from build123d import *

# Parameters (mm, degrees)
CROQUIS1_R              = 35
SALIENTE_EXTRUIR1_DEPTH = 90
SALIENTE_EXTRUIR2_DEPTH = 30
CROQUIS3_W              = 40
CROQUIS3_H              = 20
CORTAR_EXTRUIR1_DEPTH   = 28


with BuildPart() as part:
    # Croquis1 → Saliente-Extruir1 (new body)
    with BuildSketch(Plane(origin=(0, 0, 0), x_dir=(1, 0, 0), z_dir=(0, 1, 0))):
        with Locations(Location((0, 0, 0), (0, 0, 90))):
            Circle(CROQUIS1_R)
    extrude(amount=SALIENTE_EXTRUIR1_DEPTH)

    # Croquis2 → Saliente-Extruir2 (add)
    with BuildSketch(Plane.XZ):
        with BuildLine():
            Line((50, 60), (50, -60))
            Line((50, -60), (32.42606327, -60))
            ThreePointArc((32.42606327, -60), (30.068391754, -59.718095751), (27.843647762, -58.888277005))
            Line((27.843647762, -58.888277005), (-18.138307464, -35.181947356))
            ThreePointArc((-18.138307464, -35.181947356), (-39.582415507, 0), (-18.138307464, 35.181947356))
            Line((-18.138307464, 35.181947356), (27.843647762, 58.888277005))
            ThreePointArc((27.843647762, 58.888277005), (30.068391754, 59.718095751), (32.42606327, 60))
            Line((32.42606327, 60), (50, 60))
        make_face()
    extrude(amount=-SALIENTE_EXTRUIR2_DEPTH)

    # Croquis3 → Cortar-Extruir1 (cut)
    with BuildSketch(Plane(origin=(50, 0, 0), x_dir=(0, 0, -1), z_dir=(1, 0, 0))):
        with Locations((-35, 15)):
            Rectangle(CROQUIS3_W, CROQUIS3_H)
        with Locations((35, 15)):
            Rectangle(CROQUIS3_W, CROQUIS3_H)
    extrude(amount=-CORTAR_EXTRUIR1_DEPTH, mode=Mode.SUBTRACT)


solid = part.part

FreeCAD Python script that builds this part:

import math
import FreeCAD as App
import Part
import Sketcher
from FreeCAD import Vector

doc = App.newDocument("Part")
body = doc.addObject("PartDesign::Body", "Body")

# Sketch on XZ plane
sketch1 = body.newObject("Sketcher::SketchObject", "Sketch")
sketch1.AttachmentSupport = (doc.getObject("XZ_Plane"), [""])
sketch1.MapMode = "FlatFace"
sketch1.addGeometry(Part.Circle(Vector(0, 0, 0), Vector(0, 0, 1), 35), False)
sketch1.addConstraint([
    Sketcher.Constraint("Coincident", 0, 3, -1, 1),
    Sketcher.Constraint("Diameter", 0, 70.0),
])
pad1 = body.newObject("PartDesign::Pad", "Pad")
pad1.Profile = sketch1
pad1.Length = 90
pad1.Reversed = True

# Sketch on XZ plane
sketch2 = body.newObject("Sketcher::SketchObject", "Sketch001")
sketch2.AttachmentSupport = (doc.getObject("XZ_Plane"), [""])
sketch2.MapMode = "FlatFace"
sketch2.addGeometry([
    Part.LineSegment(Vector(50, -60, 0), Vector(50, 60, 0)),  # 0
    Part.LineSegment(Vector(50, 60, 0), Vector(32.4, 60, 0)),  # 1
    Part.ArcOfCircle(Part.Circle(Vector(32.4, 50, 0), Vector(0, 0, 1), 10), math.radians(90), math.radians(117)),  # 2
    Part.LineSegment(Vector(27.8, 58.9, 0), Vector(-18.1, 35.2, 0)),  # 3
    Part.ArcOfCircle(Part.Circle(Vector(0, 0, 0), Vector(0, 0, 1), 39.6), math.radians(117), math.radians(243)),  # 4
    Part.LineSegment(Vector(-18.1, -35.2, 0), Vector(27.8, -58.9, 0)),  # 5
    Part.ArcOfCircle(Part.Circle(Vector(32.4, -50, 0), Vector(0, 0, 1), 10), math.radians(-117), math.radians(-90)),  # 6
    Part.LineSegment(Vector(32.4, -60, 0), Vector(50, -60, 0)),  # 7
], False)
sketch2.addConstraint([
    Sketcher.Constraint("Coincident", 0, 2, 1, 1),
    Sketcher.Constraint("Tangent", 1, 2, 2, 1),
    Sketcher.Constraint("Tangent", 2, 2, 3, 1),
    Sketcher.Constraint("Tangent", 3, 2, 4, 1),
    Sketcher.Constraint("Tangent", 4, 2, 5, 1),
    Sketcher.Constraint("Tangent", 5, 2, 6, 1),
    Sketcher.Constraint("Tangent", 6, 2, 7, 1),
    Sketcher.Constraint("Coincident", 7, 2, 0, 1),
    Sketcher.Constraint("Vertical", 0),
    Sketcher.Constraint("Horizontal", 1),
    Sketcher.Constraint("Horizontal", 7),
    Sketcher.Constraint("Coincident", 4, 3, -1, 1),
    Sketcher.Constraint("Equal", 2, 6),
    Sketcher.Constraint("Symmetric", 2, 3, 6, 3, -1),
    Sketcher.Constraint("Radius", 2, 10.0),
    Sketcher.Constraint("DistanceY", 0, 1, 0, 2, 120.0),
    Sketcher.Constraint("DistanceX", -1, 1, 0, 2, 50.0),
    Sketcher.Constraint("Radius", 4, 39.582416),
    Sketcher.Constraint("Distance", 3, 51.733261),
])
pad2 = body.newObject("PartDesign::Pad", "Pad001")
pad2.Profile = sketch2
pad2.Length = 30
pad2.Reversed = True

# Sketch on YZ plane
sketch3 = body.newObject("Sketcher::SketchObject", "Sketch002")
sketch3.AttachmentSupport = (doc.getObject("YZ_Plane"), [""])
sketch3.MapMode = "FlatFace"
sketch3.AttachmentOffset = App.Placement(Vector(0, 0, 50), App.Rotation())
sketch3.addGeometry([
    Part.LineSegment(Vector(25, 55, 0), Vector(5, 55, 0)),  # 0
    Part.LineSegment(Vector(5, 55, 0), Vector(5, 15, 0)),  # 1
    Part.LineSegment(Vector(5, 15, 0), Vector(25, 15, 0)),  # 2
    Part.LineSegment(Vector(25, 15, 0), Vector(25, 55, 0)),  # 3
    Part.LineSegment(Vector(25, -15, 0), Vector(5, -15, 0)),  # 4
    Part.LineSegment(Vector(5, -15, 0), Vector(5, -55, 0)),  # 5
    Part.LineSegment(Vector(5, -55, 0), Vector(25, -55, 0)),  # 6
    Part.LineSegment(Vector(25, -55, 0), Vector(25, -15, 0)),  # 7
], False)
sketch3.addConstraint([
    Sketcher.Constraint("Coincident", 0, 2, 1, 1),
    Sketcher.Constraint("Coincident", 1, 2, 2, 1),
    Sketcher.Constraint("Coincident", 2, 2, 3, 1),
    Sketcher.Constraint("Coincident", 3, 2, 0, 1),
    Sketcher.Constraint("Coincident", 4, 2, 5, 1),
    Sketcher.Constraint("Coincident", 5, 2, 6, 1),
    Sketcher.Constraint("Coincident", 6, 2, 7, 1),
    Sketcher.Constraint("Coincident", 7, 2, 4, 1),
    Sketcher.Constraint("Horizontal", 0),
    Sketcher.Constraint("Vertical", 1),
    Sketcher.Constraint("Horizontal", 2),
    Sketcher.Constraint("Vertical", 3),
    Sketcher.Constraint("Horizontal", 4),
    Sketcher.Constraint("Vertical", 5),
    Sketcher.Constraint("Horizontal", 6),
    Sketcher.Constraint("Vertical", 7),
    Sketcher.Constraint("Symmetric", 1, 2, 4, 2, -1),
    Sketcher.Constraint("Symmetric", 3, 2, 6, 2, -1),
    Sketcher.Constraint("DistanceX", 0, 2, 0, 1, 20.0),
    Sketcher.Constraint("DistanceY", 1, 2, 1, 1, 40.0),
    Sketcher.Constraint("DistanceX", -1, 1, 0, 2, 5.0),
    Sketcher.Constraint("DistanceY", -1, 1, 0, 2, 55.0),
])
pocket1 = body.newObject("PartDesign::Pocket", "Pocket")
pocket1.Profile = sketch3
pocket1.Length = 28

doc.recompute()
